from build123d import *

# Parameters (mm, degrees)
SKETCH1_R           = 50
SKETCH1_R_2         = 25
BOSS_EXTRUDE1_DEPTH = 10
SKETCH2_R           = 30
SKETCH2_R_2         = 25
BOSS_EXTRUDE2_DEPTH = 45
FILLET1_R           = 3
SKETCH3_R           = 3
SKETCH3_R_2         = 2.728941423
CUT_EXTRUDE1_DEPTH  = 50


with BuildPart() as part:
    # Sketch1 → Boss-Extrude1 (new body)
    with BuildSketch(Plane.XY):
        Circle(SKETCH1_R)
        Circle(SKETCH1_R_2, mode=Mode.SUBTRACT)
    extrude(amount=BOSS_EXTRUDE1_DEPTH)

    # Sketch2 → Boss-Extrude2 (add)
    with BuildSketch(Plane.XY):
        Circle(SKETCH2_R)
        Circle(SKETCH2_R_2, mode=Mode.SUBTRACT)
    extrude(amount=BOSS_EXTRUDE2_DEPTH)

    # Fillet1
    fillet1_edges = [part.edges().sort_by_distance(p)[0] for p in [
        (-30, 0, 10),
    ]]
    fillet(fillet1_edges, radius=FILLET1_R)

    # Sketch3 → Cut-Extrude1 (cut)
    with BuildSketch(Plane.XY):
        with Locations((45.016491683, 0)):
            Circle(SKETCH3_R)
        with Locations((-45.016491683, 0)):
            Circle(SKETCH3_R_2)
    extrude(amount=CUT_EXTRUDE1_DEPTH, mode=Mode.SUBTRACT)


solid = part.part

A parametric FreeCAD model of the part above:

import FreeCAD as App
import Part
import Sketcher


def edges_at(feature, points):
    """Names of the edges that pass closest to the given points."""
    edges = feature.Shape.Edges
    near = lambda p: min(range(len(edges)), key=lambda i: edges[i].distToShape(Part.Vertex(*p))[0])
    return sorted({f"Edge{near(p) + 1}" for p in points})

doc = App.newDocument("Part")
body = doc.addObject("PartDesign::Body", "Body")

sketch1 = doc.addObject("Sketcher::SketchObject", "Sketch")
body.addObject(sketch1)
sketch1.AttachmentSupport = (doc.XY_Plane, [""])
sketch1.MapMode = "FlatFace"
sketch1.addGeometry(Part.Circle(App.Vector(0, 0, 0), App.Vector(0, 0, 1), 50), False)
sketch1.addGeometry(Part.Circle(App.Vector(0, 0, 0), App.Vector(0, 0, 1), 25), False)
sketch1.addConstraint(Sketcher.Constraint("Coincident", 0, 3, -1, 1))
sketch1.addConstraint(Sketcher.Constraint("Coincident", 1, 3, -1, 1))
sketch1.addConstraint(Sketcher.Constraint("Diameter", 0, 100.0))
sketch1.addConstraint(Sketcher.Constraint("Diameter", 1, 50.0))
pad1 = doc.addObject("PartDesign::Pad", "Pad")
body.addObject(pad1)
pad1.Profile = sketch1
pad1.Length = 10

sketch2 = doc.addObject("Sketcher::SketchObject", "Sketch001")
body.addObject(sketch2)
sketch2.AttachmentSupport = (doc.XY_Plane, [""])
sketch2.MapMode = "FlatFace"
sketch2.addGeometry(Part.Circle(App.Vector(0, 0, 0), App.Vector(0, 0, 1), 30), False)
sketch2.addGeometry(Part.Circle(App.Vector(0, 0, 0), App.Vector(0, 0, 1), 25), False)
sketch2.addConstraint(Sketcher.Constraint("Coincident", 0, 3, -1, 1))
sketch2.addConstraint(Sketcher.Constraint("Coincident", 1, 3, -1, 1))
sketch2.addConstraint(Sketcher.Constraint("Diameter", 0, 60.0))
sketch2.addConstraint(Sketcher.Constraint("Diameter", 1, 50.0))
pad2 = doc.addObject("PartDesign::Pad", "Pad001")
body.addObject(pad2)
pad2.Profile = sketch2
pad2.Length = 45
doc.recompute()

fillet = doc.addObject("PartDesign::Fillet", "Fillet")
body.addObject(fillet)
fillet.Base = (pad2, edges_at(pad2, [(-30, 0, 10)]))
fillet.Radius = 3

sketch3 = doc.addObject("Sketcher::SketchObject", "Sketch002")
body.addObject(sketch3)
sketch3.AttachmentSupport = (doc.XY_Plane, [""])
sketch3.MapMode = "FlatFace"
sketch3.addGeometry(Part.Circle(App.Vector(45, 0, 0), App.Vector(0, 0, 1), 3), False)
sketch3.addGeometry(Part.Circle(App.Vector(-45, 0, 0), App.Vector(0, 0, 1), 2.7), False)
sketch3.addConstraint(Sketcher.Constraint("Symmetric", 0, 3, 1, 3, -1, 1))
sketch3.addConstraint(Sketcher.Constraint("PointOnObject", 0, 3, -1))
sketch3.addConstraint(Sketcher.Constraint("Diameter", 0, 6.0))
sketch3.addConstraint(Sketcher.Constraint("Diameter", 1, 5.457883))
sketch3.addConstraint(Sketcher.Constraint("DistanceX", -1, 1, 0, 3, 45.016492))
pocket1 = doc.addObject("PartDesign::Pocket", "Pocket")
body.addObject(pocket1)
pocket1.Profile = sketch3
pocket1.Length = 50
pocket1.Reversed = True

doc.recompute()
